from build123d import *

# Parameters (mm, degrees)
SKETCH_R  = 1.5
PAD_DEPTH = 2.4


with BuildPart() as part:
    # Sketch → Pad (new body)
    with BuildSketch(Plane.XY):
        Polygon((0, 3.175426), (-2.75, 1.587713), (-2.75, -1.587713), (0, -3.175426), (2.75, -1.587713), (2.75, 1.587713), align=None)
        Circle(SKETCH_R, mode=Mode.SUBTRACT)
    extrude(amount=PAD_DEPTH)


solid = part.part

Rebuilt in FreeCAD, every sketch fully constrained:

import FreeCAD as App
import Part
import Sketcher
Q = App.Units.Quantity


def add_polygon(sketch, points):
    """Adds a closed chain of lines whose ends are joined by coincident constraints."""
    first, n = sketch.GeometryCount, len(points)
    for a, b in zip(points, points[1:] + points[:1]):
        sketch.addGeometry(Part.LineSegment(App.Vector(*a, 0), App.Vector(*b, 0)), False)
    for i in range(n):
        sketch.addConstraint(Sketcher.Constraint("Coincident", first + i, 2, first + (i + 1) % n, 1))

doc = App.newDocument("Part")
params = doc.addObject("Spreadsheet::Sheet", "Params")
for row, (alias, value) in enumerate([
    ("sketch1_diameter", "3 mm"),
    ("pad1_length", "2.4 mm"),
], start=1):
    params.set(f"A{row}", alias)
    params.set(f"B{row}", "=" + value)
    params.setAlias(f"B{row}", alias)

body = doc.addObject("PartDesign::Body", "Body")

sketch1 = body.newObject("Sketcher::SketchObject", "Sketch")
sketch1.AttachmentSupport = (doc.getObject("XY_Plane"), [""])
sketch1.MapMode = "FlatFace"
add_polygon(sketch1, [(0, 3.2), (-2.8, 1.6), (-2.8, -1.6), (0, -3.2), (2.8, -1.6), (2.8, 1.6)])
sketch1.addGeometry(Part.Circle(App.Vector(0, 0, 0), App.Vector(0, 0, 1), 1.5), False)
sketch1.addConstraint([
    Sketcher.Constraint("Vertical", 1),
    Sketcher.Constraint("Vertical", 4),
    Sketcher.Constraint("Coincident", 6, 3, -1, 1),
    Sketcher.Constraint("Symmetric", 0, 2, 3, 2, -1, 1),
    Sketcher.Constraint("Symmetric", 2, 2, 5, 2, -1, 1),
    Sketcher.Constraint("PointOnObject", 2, 2, -2),
    Sketcher.Constraint("Parallel", 2, 5),
    Sketcher.Constraint("Horizontal", 1, 2, 3, 2),
    Sketcher.Constraint("Diameter", 6, Q("3 mm")),
    Sketcher.Constraint("Angle", 0, Q("-150.000004 deg")),
    Sketcher.Constraint("DistanceX", 1, 2, 3, 2, Q("5.5 mm")),
    Sketcher.Constraint("DistanceY", 1, 2, 1, 1, Q("3.175426 mm")),
])
sketch1.setExpression("Constraints[14]", "Params.sketch1_diameter")
pad1 = body.newObject("PartDesign::Pad", "Pad")
pad1.Profile = sketch1
pad1.setExpression("Length", "Params.pad1_length")

doc.recompute()
